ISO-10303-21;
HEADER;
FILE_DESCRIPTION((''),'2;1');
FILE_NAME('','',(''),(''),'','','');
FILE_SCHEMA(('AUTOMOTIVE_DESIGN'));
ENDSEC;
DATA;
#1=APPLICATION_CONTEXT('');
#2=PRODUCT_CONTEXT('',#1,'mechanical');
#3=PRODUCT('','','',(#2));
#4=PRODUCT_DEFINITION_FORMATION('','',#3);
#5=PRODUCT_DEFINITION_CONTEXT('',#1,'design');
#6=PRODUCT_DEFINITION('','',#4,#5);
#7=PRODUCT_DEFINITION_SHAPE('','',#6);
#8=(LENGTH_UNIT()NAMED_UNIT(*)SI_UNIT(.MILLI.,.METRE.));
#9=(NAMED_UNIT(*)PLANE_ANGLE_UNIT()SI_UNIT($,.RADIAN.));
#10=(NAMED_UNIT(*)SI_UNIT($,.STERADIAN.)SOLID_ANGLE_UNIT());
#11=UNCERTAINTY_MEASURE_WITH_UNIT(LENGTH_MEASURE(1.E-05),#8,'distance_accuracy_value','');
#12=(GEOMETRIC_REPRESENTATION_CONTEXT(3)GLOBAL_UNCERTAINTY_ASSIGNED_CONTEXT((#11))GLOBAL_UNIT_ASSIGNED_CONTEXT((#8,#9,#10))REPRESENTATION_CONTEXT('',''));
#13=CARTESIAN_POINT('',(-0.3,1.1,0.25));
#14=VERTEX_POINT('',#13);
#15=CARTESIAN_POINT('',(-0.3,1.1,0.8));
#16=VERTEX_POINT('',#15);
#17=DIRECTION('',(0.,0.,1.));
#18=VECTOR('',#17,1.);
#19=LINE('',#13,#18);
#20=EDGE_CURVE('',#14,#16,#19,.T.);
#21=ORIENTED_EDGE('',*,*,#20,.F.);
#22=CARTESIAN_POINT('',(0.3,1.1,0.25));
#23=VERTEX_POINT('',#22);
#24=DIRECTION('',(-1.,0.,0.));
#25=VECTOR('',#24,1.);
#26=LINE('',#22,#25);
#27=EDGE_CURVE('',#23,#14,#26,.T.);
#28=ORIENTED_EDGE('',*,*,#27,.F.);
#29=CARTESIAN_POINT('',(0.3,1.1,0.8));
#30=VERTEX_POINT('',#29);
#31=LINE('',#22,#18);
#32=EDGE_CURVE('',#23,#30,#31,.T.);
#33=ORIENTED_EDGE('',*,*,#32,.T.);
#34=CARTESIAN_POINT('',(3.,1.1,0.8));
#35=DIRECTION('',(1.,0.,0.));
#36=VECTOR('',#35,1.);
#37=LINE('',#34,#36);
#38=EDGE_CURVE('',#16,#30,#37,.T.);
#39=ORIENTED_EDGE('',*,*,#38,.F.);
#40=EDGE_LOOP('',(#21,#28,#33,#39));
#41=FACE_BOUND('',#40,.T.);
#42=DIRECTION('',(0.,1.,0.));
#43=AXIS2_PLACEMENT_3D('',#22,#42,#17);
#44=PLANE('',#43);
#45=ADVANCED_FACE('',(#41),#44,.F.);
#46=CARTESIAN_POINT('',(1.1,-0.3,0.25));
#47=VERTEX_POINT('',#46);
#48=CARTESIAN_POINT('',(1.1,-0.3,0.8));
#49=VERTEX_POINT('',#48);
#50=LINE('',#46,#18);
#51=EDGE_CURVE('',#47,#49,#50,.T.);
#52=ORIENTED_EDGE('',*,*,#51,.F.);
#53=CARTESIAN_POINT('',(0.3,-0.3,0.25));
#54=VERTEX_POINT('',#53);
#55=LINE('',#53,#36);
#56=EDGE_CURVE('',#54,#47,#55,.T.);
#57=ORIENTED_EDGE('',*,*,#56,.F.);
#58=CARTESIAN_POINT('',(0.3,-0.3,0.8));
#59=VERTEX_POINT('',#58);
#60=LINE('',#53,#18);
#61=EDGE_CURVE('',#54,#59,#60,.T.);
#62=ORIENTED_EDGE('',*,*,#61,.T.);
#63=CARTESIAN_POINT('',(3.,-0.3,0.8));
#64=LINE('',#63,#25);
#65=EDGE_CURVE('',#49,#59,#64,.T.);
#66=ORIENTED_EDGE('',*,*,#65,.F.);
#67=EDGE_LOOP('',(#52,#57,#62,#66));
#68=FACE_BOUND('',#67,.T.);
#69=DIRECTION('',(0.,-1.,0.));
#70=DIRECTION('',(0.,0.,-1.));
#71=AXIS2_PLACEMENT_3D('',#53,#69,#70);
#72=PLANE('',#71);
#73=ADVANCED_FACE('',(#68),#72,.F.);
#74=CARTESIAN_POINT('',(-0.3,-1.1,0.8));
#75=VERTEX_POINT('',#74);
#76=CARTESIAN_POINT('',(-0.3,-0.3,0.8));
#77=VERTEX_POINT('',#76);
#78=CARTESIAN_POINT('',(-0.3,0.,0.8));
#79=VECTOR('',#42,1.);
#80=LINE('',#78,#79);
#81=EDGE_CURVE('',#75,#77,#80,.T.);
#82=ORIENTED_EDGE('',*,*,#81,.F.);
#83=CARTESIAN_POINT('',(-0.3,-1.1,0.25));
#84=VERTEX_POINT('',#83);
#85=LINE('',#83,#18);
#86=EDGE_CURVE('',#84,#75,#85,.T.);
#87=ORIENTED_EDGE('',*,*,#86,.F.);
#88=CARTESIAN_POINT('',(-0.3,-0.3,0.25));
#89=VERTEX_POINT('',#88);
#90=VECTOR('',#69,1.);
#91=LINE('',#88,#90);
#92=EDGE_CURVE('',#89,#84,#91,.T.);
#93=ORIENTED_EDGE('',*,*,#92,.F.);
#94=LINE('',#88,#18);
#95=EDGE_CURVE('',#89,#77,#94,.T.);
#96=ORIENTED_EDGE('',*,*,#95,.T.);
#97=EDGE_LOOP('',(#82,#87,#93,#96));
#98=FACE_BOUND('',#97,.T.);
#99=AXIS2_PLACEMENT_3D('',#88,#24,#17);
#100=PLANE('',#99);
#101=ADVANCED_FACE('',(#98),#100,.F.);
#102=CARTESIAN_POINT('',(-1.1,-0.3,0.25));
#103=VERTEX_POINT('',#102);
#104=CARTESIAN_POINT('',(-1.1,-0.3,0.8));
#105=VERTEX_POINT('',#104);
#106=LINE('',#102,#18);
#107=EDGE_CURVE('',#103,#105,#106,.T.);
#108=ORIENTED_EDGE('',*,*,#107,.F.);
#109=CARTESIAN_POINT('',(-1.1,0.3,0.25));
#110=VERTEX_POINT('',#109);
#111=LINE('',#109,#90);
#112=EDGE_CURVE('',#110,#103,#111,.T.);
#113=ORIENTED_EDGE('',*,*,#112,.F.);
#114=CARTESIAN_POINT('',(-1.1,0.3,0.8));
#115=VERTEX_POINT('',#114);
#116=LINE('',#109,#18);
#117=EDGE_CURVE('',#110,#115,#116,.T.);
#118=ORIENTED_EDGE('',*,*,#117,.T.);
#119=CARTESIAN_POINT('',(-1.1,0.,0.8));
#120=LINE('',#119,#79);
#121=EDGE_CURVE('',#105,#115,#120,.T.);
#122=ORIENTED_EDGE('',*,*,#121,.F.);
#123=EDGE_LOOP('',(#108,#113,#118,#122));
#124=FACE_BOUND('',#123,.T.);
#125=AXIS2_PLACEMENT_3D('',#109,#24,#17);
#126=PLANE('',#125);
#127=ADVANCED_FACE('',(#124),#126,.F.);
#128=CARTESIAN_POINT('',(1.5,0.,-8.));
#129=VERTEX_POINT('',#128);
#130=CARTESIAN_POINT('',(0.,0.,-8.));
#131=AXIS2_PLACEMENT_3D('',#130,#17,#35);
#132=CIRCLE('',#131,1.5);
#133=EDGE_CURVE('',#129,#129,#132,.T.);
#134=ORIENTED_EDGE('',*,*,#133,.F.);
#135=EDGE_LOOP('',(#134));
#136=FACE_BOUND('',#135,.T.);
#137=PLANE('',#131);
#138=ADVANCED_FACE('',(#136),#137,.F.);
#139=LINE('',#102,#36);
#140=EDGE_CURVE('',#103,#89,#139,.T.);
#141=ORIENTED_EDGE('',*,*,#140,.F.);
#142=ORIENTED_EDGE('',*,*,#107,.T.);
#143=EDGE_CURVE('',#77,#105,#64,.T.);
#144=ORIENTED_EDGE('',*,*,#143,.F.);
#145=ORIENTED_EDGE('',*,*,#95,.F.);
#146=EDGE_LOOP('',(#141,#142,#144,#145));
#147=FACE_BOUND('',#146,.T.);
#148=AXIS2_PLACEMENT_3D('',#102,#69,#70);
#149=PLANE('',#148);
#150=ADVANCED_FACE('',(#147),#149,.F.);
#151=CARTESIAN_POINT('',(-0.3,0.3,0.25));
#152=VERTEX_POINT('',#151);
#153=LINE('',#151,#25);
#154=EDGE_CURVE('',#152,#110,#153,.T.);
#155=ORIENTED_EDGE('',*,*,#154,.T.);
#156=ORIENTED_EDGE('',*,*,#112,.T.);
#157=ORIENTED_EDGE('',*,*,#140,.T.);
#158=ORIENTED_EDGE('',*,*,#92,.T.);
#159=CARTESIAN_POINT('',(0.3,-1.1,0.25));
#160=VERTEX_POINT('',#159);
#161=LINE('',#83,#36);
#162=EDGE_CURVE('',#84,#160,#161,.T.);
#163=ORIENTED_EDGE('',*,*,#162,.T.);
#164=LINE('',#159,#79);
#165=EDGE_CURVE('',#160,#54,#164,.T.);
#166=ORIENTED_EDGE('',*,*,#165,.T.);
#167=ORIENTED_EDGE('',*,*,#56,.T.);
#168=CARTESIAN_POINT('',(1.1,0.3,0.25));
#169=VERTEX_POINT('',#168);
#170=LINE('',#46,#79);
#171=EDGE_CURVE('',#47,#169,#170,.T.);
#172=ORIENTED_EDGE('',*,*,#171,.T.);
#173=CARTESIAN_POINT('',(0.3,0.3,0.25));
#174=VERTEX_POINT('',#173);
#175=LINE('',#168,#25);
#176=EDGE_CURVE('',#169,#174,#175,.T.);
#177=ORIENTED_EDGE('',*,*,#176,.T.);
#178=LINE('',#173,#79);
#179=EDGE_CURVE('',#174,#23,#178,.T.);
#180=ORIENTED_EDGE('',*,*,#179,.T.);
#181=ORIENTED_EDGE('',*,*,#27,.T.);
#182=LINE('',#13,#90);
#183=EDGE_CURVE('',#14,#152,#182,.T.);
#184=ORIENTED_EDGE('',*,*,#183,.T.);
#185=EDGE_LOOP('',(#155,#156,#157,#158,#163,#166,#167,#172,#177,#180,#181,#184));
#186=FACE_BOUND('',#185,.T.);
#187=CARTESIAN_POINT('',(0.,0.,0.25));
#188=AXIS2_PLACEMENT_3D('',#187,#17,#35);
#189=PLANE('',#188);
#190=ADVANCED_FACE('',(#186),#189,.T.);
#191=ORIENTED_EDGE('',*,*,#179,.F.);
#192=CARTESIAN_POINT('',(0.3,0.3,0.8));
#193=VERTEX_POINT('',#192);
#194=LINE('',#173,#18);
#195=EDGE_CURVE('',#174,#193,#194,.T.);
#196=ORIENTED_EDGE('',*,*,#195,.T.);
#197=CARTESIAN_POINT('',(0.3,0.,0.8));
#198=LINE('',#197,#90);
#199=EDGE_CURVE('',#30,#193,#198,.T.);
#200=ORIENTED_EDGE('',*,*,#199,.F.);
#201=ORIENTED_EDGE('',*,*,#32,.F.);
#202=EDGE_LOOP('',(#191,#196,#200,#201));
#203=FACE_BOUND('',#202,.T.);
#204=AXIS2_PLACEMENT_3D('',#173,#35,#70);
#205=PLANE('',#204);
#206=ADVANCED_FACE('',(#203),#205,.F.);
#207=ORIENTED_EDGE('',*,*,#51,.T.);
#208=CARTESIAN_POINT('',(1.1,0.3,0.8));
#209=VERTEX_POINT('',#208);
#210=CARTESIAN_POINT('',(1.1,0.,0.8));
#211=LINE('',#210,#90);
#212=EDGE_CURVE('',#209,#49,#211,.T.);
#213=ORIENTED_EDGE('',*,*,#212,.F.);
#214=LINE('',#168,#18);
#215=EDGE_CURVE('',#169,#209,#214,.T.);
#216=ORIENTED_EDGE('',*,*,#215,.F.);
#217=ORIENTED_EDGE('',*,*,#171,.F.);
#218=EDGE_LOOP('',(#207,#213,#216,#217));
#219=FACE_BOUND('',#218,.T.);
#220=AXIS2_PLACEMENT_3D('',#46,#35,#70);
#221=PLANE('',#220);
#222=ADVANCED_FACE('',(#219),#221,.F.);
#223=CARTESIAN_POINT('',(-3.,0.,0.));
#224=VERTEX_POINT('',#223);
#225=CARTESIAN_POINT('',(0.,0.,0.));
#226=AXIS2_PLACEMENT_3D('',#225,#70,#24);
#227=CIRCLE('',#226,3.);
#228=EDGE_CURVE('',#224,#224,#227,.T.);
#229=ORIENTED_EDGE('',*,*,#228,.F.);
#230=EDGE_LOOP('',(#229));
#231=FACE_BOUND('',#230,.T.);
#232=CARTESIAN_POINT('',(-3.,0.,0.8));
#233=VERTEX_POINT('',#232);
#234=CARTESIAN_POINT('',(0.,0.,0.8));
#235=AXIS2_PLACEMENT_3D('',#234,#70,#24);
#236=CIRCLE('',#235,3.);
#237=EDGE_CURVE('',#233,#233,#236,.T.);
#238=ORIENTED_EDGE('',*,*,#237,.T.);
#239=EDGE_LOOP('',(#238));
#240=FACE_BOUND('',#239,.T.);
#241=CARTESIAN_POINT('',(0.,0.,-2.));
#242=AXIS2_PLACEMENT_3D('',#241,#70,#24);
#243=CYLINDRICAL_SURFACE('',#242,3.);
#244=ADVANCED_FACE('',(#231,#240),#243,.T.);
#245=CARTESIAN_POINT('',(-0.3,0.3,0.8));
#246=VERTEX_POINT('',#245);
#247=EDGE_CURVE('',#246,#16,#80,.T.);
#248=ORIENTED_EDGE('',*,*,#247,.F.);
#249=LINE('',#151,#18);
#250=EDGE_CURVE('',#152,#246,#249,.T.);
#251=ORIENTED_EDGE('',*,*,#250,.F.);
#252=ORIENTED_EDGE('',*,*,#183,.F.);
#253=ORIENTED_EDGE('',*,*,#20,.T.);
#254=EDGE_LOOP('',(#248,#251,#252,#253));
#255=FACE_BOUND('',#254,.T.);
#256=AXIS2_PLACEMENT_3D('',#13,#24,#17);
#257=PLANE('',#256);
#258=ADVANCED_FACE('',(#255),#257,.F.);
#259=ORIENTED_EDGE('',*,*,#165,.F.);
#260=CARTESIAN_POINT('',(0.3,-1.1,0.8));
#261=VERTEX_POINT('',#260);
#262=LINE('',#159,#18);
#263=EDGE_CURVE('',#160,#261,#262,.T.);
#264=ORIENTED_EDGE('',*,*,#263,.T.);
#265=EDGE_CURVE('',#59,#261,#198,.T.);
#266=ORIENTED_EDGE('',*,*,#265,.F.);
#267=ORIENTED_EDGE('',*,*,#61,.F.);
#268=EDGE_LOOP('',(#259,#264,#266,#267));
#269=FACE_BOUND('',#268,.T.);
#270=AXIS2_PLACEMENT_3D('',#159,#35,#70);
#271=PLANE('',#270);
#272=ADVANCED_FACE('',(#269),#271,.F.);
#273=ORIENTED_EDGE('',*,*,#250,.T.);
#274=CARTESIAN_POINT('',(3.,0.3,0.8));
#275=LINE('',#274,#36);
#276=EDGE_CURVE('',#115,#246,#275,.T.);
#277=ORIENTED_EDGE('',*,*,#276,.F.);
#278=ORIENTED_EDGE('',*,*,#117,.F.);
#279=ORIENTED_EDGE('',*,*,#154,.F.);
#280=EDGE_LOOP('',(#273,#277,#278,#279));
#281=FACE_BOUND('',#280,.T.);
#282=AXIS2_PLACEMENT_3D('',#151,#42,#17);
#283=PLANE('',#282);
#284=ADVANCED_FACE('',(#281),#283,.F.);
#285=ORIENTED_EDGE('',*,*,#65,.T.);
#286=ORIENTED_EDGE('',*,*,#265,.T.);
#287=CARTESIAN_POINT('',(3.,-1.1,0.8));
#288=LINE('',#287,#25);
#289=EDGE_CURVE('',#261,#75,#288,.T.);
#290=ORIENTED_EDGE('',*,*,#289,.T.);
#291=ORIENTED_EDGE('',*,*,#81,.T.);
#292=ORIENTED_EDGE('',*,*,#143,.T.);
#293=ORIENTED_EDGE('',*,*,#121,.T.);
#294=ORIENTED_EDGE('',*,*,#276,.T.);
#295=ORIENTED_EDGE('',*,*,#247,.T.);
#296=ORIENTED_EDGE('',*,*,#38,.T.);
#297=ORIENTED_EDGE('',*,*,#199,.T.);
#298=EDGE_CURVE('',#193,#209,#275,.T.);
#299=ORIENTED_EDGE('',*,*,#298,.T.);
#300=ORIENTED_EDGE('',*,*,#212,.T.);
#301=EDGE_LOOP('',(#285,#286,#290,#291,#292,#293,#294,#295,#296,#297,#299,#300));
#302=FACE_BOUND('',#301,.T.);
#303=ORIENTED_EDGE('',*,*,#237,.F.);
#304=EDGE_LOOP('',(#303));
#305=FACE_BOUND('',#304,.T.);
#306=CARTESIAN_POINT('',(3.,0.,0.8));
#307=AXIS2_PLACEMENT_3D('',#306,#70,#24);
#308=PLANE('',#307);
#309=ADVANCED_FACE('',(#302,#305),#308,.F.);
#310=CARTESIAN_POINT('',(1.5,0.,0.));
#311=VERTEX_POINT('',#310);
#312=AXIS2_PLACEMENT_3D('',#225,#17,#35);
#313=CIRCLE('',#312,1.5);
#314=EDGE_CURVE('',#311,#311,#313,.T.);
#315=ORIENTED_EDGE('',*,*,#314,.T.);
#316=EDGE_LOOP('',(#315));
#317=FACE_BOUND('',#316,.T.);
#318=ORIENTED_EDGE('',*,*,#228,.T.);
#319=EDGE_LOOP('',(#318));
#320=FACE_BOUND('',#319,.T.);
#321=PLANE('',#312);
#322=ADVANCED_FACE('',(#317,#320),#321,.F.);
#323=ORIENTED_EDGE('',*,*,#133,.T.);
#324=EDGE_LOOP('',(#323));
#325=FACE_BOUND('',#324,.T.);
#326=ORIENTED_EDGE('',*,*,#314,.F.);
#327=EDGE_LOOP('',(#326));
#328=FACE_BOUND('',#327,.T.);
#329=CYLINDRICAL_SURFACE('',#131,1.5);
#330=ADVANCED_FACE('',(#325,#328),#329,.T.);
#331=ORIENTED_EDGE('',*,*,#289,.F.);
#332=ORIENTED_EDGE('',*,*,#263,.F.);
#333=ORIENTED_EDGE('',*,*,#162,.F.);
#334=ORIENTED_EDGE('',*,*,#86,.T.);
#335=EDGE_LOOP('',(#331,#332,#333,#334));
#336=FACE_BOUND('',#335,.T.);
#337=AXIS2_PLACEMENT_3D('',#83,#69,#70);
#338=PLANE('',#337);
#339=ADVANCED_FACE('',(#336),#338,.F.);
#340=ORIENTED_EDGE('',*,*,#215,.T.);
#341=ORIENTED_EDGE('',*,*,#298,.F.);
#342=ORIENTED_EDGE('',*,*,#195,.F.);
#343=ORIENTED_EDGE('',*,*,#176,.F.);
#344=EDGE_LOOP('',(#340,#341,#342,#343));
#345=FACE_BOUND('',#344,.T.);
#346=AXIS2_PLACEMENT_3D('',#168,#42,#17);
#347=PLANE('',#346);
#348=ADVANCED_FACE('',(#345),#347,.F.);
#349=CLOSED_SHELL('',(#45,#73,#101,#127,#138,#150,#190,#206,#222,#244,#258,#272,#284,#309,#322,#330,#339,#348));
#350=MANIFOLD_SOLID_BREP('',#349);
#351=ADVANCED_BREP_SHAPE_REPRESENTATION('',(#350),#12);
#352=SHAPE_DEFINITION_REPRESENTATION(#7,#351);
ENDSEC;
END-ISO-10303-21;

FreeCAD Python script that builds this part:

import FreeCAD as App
import Part
import Sketcher
Q = App.Units.Quantity

doc = App.newDocument("Part")
params = doc.addObject("Spreadsheet::Sheet", "Params")
for row, (alias, value) in enumerate([
    ("sketch1_diameter", "3 mm"),
    ("pad1_length", "8 mm"),
    ("sketch2_width", "3 mm"),
    ("sketch2_height", "0.8 mm"),
    ("revolution_angle", "360 deg"),
    ("sketch3_width", "0.6 mm"),
    ("sketch3_width2", "0.8 mm"),
    ("pocket1_length", "0.56 mm"),
], start=1):
    params.set(f"A{row}", alias)
    params.set(f"B{row}", "=" + value)
    params.setAlias(f"B{row}", alias)

body = doc.addObject("PartDesign::Body", "Body")

# Sketch on XY plane
sketch1 = body.newObject("Sketcher::SketchObject", "Sketch")
sketch1.AttachmentSupport = (doc.getObject("XY_Plane"), [""])
sketch1.MapMode = "FlatFace"
sketch1.addGeometry(Part.Circle(App.Vector(0, 0, 0), App.Vector(0, 0, 1), 1.5), False)
sketch1.addConstraint(Sketcher.Constraint("Coincident", 0, 3, -1, 1))
sketch1.addConstraint(Sketcher.Constraint("Diameter", 0, Q("3 mm")))
sketch1.setExpression("Constraints[1]", "Params.sketch1_diameter")
pad1 = body.newObject("PartDesign::Pad", "Pad")
pad1.Profile = sketch1
pad1.setExpression("Length", "Params.pad1_length")
pad1.Reversed = True

# Sketch on XZ plane
sketch2 = body.newObject("Sketcher::SketchObject", "Sketch001")
sketch2.AttachmentSupport = (doc.getObject("XZ_Plane"), [""])
sketch2.MapMode = "FlatFace"
sketch2.addGeometry(Part.LineSegment(App.Vector(0, 0, 0), App.Vector(0, 0.8, 0)), False)
sketch2.addGeometry(Part.LineSegment(App.Vector(0, 0.8, 0), App.Vector(3, 0.8, 0)), False)
sketch2.addGeometry(Part.LineSegment(App.Vector(3, 0.8, 0), App.Vector(3, 0, 0)), False)
sketch2.addGeometry(Part.LineSegment(App.Vector(3, 0, 0), App.Vector(0, 0, 0)), False)
sketch2.addConstraint(Sketcher.Constraint("Coincident", 0, 2, 1, 1))
sketch2.addConstraint(Sketcher.Constraint("Coincident", 1, 2, 2, 1))
sketch2.addConstraint(Sketcher.Constraint("Coincident", 2, 2, 3, 1))
sketch2.addConstraint(Sketcher.Constraint("Coincident", 3, 2, 0, 1))
sketch2.addConstraint(Sketcher.Constraint("Vertical", 0))
sketch2.addConstraint(Sketcher.Constraint("Horizontal", 1))
sketch2.addConstraint(Sketcher.Constraint("Vertical", 2))
sketch2.addConstraint(Sketcher.Constraint("Horizontal", 3))
sketch2.addConstraint(Sketcher.Constraint("Coincident", 3, 2, -1, 1))
sketch2.addConstraint(Sketcher.Constraint("DistanceX", 1, 1, 1, 2, Q("3 mm")))
sketch2.addConstraint(Sketcher.Constraint("DistanceY", 0, 1, 0, 2, Q("0.8 mm")))
sketch2.setExpression("Constraints[9]", "Params.sketch2_width")
sketch2.setExpression("Constraints[10]", "Params.sketch2_height")
revolution = body.newObject("PartDesign::Revolution", "Revolution")
revolution.Profile = sketch2
revolution.ReferenceAxis = (sketch2, ["V_Axis"])
revolution.setExpression("Angle", "Params.revolution_angle")

# Sketch on XY plane
sketch3 = body.newObject("Sketcher::SketchObject", "Sketch002")
sketch3.AttachmentSupport = (doc.getObject("XY_Plane"), [""])
sketch3.MapMode = "FlatFace"
sketch3.AttachmentOffset = App.Placement(App.Vector(0, 0, 0.81), App.Rotation())
sketch3.addGeometry(Part.LineSegment(App.Vector(-0.3, -1.1, 0), App.Vector(0.3, -1.1, 0)), False)
sketch3.addGeometry(Part.LineSegment(App.Vector(0.3, -1.1, 0), App.Vector(0.3, -0.3, 0)), False)
sketch3.addGeometry(Part.LineSegment(App.Vector(0.3, -0.3, 0), App.Vector(1.1, -0.3, 0)), False)
sketch3.addGeometry(Part.LineSegment(App.Vector(1.1, -0.3, 0), App.Vector(1.1, 0.3, 0)), False)
sketch3.addGeometry(Part.LineSegment(App.Vector(1.1, 0.3, 0), App.Vector(0.3, 0.3, 0)), False)
sketch3.addGeometry(Part.LineSegment(App.Vector(0.3, 0.3, 0), App.Vector(0.3, 1.1, 0)), False)
sketch3.addGeometry(Part.LineSegment(App.Vector(0.3, 1.1, 0), App.Vector(-0.3, 1.1, 0)), False)
sketch3.addGeometry(Part.LineSegment(App.Vector(-0.3, 1.1, 0), App.Vector(-0.3, 0.3, 0)), False)
sketch3.addGeometry(Part.LineSegment(App.Vector(-0.3, 0.3, 0), App.Vector(-1.1, 0.3, 0)), False)
sketch3.addGeometry(Part.LineSegment(App.Vector(-1.1, 0.3, 0), App.Vector(-1.1, -0.3, 0)), False)
sketch3.addGeometry(Part.LineSegment(App.Vector(-1.1, -0.3, 0), App.Vector(-0.3, -0.3, 0)), False)
sketch3.addGeometry(Part.LineSegment(App.Vector(-0.3, -0.3, 0), App.Vector(-0.3, -1.1, 0)), False)
sketch3.addConstraint(Sketcher.Constraint("Coincident", 0, 2, 1, 1))
sketch3.addConstraint(Sketcher.Constraint("Coincident", 1, 2, 2, 1))
sketch3.addConstraint(Sketcher.Constraint("Coincident", 2, 2, 3, 1))
sketch3.addConstraint(Sketcher.Constraint("Coincident", 3, 2, 4, 1))
sketch3.addConstraint(Sketcher.Constraint("Coincident", 4, 2, 5, 1))
sketch3.addConstraint(Sketcher.Constraint("Coincident", 5, 2, 6, 1))
sketch3.addConstraint(Sketcher.Constraint("Coincident", 6, 2, 7, 1))
sketch3.addConstraint(Sketcher.Constraint("Coincident", 7, 2, 8, 1))
sketch3.addConstraint(Sketcher.Constraint("Coincident", 8, 2, 9, 1))
sketch3.addConstraint(Sketcher.Constraint("Coincident", 9, 2, 10, 1))
sketch3.addConstraint(Sketcher.Constraint("Coincident", 10, 2, 11, 1))
sketch3.addConstraint(Sketcher.Constraint("Coincident", 11, 2, 0, 1))
sketch3.addConstraint(Sketcher.Constraint("Horizontal", 0))
sketch3.addConstraint(Sketcher.Constraint("Vertical", 1))
sketch3.addConstraint(Sketcher.Constraint("Horizontal", 2))
sketch3.addConstraint(Sketcher.Constraint("Vertical", 3))
sketch3.addConstraint(Sketcher.Constraint("Horizontal", 4))
sketch3.addConstraint(Sketcher.Constraint("Vertical", 5))
sketch3.addConstraint(Sketcher.Constraint("Horizontal", 6))
sketch3.addConstraint(Sketcher.Constraint("Vertical", 7))
sketch3.addConstraint(Sketcher.Constraint("Horizontal", 8))
sketch3.addConstraint(Sketcher.Constraint("Vertical", 9))
sketch3.addConstraint(Sketcher.Constraint("Horizontal", 10))
sketch3.addConstraint(Sketcher.Constraint("Vertical", 11))
sketch3.addConstraint(Sketcher.Constraint("Symmetric", 0, 2, 6, 2, -1, 1))
sketch3.addConstraint(Sketcher.Constraint("Symmetric", 2, 2, 8, 2, -1, 1))
sketch3.addConstraint(Sketcher.Constraint("Symmetric", 4, 2, 10, 2, -1, 1))
sketch3.addConstraint(Sketcher.Constraint("Symmetric", 4, 2, 7, 2, -2))
sketch3.addConstraint(Sketcher.Constraint("Equal", 10, 1))
sketch3.addConstraint(Sketcher.Constraint("Equal", 6, 3))
sketch3.addConstraint(Sketcher.Constraint("DistanceX", 0, 1, 0, 2, Q("0.6 mm")))
sketch3.addConstraint(Sketcher.Constraint("DistanceX", 2, 1, 2, 2, Q("0.8 mm")))
sketch3.setExpression("Constraints[30]", "Params.sketch3_width")
sketch3.setExpression("Constraints[31]", "Params.sketch3_width2")
pocket1 = body.newObject("PartDesign::Pocket", "Pocket")
pocket1.Profile = sketch3
pocket1.setExpression("Length", "Params.pocket1_length")

doc.recompute()
